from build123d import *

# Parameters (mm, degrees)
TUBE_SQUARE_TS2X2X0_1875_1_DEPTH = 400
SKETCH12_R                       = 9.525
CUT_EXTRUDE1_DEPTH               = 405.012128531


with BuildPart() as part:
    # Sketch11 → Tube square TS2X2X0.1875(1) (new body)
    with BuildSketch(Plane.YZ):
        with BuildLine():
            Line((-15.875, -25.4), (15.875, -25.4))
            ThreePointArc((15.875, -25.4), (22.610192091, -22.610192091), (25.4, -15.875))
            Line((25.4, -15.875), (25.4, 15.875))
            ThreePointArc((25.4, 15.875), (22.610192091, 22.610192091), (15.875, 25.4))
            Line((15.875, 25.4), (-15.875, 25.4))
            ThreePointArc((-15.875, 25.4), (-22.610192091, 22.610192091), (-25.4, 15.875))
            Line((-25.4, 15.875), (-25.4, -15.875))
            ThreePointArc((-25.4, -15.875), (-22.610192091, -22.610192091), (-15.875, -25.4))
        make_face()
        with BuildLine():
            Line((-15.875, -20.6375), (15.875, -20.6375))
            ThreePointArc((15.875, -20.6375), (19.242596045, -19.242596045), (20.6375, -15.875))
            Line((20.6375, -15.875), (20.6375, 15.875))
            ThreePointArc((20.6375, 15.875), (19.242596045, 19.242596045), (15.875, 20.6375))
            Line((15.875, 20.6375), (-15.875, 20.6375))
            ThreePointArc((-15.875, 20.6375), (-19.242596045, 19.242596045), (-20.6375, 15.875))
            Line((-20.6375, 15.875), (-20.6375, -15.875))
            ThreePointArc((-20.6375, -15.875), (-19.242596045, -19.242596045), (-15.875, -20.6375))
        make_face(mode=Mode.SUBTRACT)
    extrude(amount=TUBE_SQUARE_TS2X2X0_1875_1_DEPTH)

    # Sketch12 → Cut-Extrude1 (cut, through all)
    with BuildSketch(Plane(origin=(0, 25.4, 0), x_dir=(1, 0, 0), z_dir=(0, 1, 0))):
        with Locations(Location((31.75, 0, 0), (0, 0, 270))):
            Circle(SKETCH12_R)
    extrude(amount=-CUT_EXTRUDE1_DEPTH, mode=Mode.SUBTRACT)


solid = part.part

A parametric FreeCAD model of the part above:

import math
import FreeCAD as App
import Part
import Sketcher
Q = App.Units.Quantity

doc = App.newDocument("Part")
body = doc.addObject("PartDesign::Body", "Body")

# Sketch on YZ plane
sketch1 = body.newObject("Sketcher::SketchObject", "Sketch")
sketch1.AttachmentSupport = (doc.getObject("YZ_Plane"), [""])
sketch1.MapMode = "FlatFace"
sketch1.addGeometry(Part.LineSegment(App.Vector(-15.9, -25.4, 0), App.Vector(15.9, -25.4, 0)), False)
sketch1.addGeometry(Part.ArcOfCircle(Part.Circle(App.Vector(15.9, -15.9, 0), App.Vector(0, 0, 1), 9.5), math.radians(-90), math.radians(0)), False)
sketch1.addGeometry(Part.LineSegment(App.Vector(25.4, -15.9, 0), App.Vector(25.4, 15.9, 0)), False)
sketch1.addGeometry(Part.ArcOfCircle(Part.Circle(App.Vector(15.9, 15.9, 0), App.Vector(0, 0, 1), 9.5), math.radians(0), math.radians(90)), False)
sketch1.addGeometry(Part.LineSegment(App.Vector(15.9, 25.4, 0), App.Vector(-15.9, 25.4, 0)), False)
sketch1.addGeometry(Part.ArcOfCircle(Part.Circle(App.Vector(-15.9, 15.9, 0), App.Vector(0, 0, 1), 9.5), math.radians(90), math.radians(180)), False)
sketch1.addGeometry(Part.LineSegment(App.Vector(-25.4, 15.9, 0), App.Vector(-25.4, -15.9, 0)), False)
sketch1.addGeometry(Part.ArcOfCircle(Part.Circle(App.Vector(-15.9, -15.9, 0), App.Vector(0, 0, 1), 9.5), math.radians(180), math.radians(270)), False)
sketch1.addGeometry(Part.LineSegment(App.Vector(15.9, -20.6, 0), App.Vector(-15.9, -20.6, 0)), False)
sketch1.addGeometry(Part.ArcOfCircle(Part.Circle(App.Vector(-15.9, -15.9, 0), App.Vector(0, 0, 1), 4.8), math.radians(-180), math.radians(-90)), False)
sketch1.addGeometry(Part.LineSegment(App.Vector(-20.6, -15.9, 0), App.Vector(-20.6, 15.9, 0)), False)
sketch1.addGeometry(Part.ArcOfCircle(Part.Circle(App.Vector(-15.9, 15.9, 0), App.Vector(0, 0, 1), 4.8), math.radians(90), math.radians(180)), False)
sketch1.addGeometry(Part.LineSegment(App.Vector(-15.9, 20.6, 0), App.Vector(15.9, 20.6, 0)), False)
sketch1.addGeometry(Part.ArcOfCircle(Part.Circle(App.Vector(15.9, 15.9, 0), App.Vector(0, 0, 1), 4.8), math.radians(0), math.radians(90)), False)
sketch1.addGeometry(Part.LineSegment(App.Vector(20.6, 15.9, 0), App.Vector(20.6, -15.9, 0)), False)
sketch1.addGeometry(Part.ArcOfCircle(Part.Circle(App.Vector(15.9, -15.9, 0), App.Vector(0, 0, 1), 4.8), math.radians(-90), math.radians(0)), False)
sketch1.addConstraint(Sketcher.Constraint("Tangent", 0, 2, 1, 1))
sketch1.addConstraint(Sketcher.Constraint("Tangent", 1, 2, 2, 1))
sketch1.addConstraint(Sketcher.Constraint("Tangent", 2, 2, 3, 1))
sketch1.addConstraint(Sketcher.Constraint("Tangent", 3, 2, 4, 1))
sketch1.addConstraint(Sketcher.Constraint("Tangent", 4, 2, 5, 1))
sketch1.addConstraint(Sketcher.Constraint("Tangent", 5, 2, 6, 1))
sketch1.addConstraint(Sketcher.Constraint("Tangent", 6, 2, 7, 1))
sketch1.addConstraint(Sketcher.Constraint("Tangent", 7, 2, 0, 1))
sketch1.addConstraint(Sketcher.Constraint("Tangent", 8, 2, 9, 2))
sketch1.addConstraint(Sketcher.Constraint("Tangent", 9, 1, 10, 1))
sketch1.addConstraint(Sketcher.Constraint("Tangent", 10, 2, 11, 2))
sketch1.addConstraint(Sketcher.Constraint("Tangent", 11, 1, 12, 1))
sketch1.addConstraint(Sketcher.Constraint("Tangent", 12, 2, 13, 2))
sketch1.addConstraint(Sketcher.Constraint("Tangent", 13, 1, 14, 1))
sketch1.addConstraint(Sketcher.Constraint("Tangent", 14, 2, 15, 2))
sketch1.addConstraint(Sketcher.Constraint("Tangent", 15, 1, 8, 1))
sketch1.addConstraint(Sketcher.Constraint("Horizontal", 0))
sketch1.addConstraint(Sketcher.Constraint("Vertical", 2))
sketch1.addConstraint(Sketcher.Constraint("Horizontal", 4))
sketch1.addConstraint(Sketcher.Constraint("Vertical", 6))
sketch1.addConstraint(Sketcher.Constraint("Horizontal", 8))
sketch1.addConstraint(Sketcher.Constraint("Vertical", 10))
sketch1.addConstraint(Sketcher.Constraint("Horizontal", 12))
sketch1.addConstraint(Sketcher.Constraint("Vertical", 14))
sketch1.addConstraint(Sketcher.Constraint("Coincident", 9, 3, 7, 3))
sketch1.addConstraint(Sketcher.Constraint("Coincident", 11, 3, 5, 3))
sketch1.addConstraint(Sketcher.Constraint("Coincident", 13, 3, 3, 3))
sketch1.addConstraint(Sketcher.Constraint("Equal", 1, 3))
sketch1.addConstraint(Sketcher.Constraint("Equal", 3, 5))
sketch1.addConstraint(Sketcher.Constraint("Equal", 5, 7))
sketch1.addConstraint(Sketcher.Constraint("Equal", 13, 15))
sketch1.addConstraint(Sketcher.Constraint("Symmetric", 1, 3, 5, 3, -1, 1))
sketch1.addConstraint(Sketcher.Constraint("Equal", 12, 2))
sketch1.addConstraint(Sketcher.Constraint("DistanceY", 0, 2, -1, 1, Q("1 in")))
sketch1.addConstraint(Sketcher.Constraint("Radius", 1, Q("0.375 in")))
sketch1.addConstraint(Sketcher.Constraint("Radius", 9, Q("0.1875 in")))
pad1 = body.newObject("PartDesign::Pad", "Pad")
pad1.Profile = sketch1
pad1.Length = 400

# Sketch on XZ plane
sketch2 = body.newObject("Sketcher::SketchObject", "Sketch001")
sketch2.AttachmentSupport = (doc.getObject("XZ_Plane"), [""])
sketch2.MapMode = "FlatFace"
sketch2.AttachmentOffset = App.Placement(App.Vector(0, 0, -1 * 25.4), App.Rotation())
sketch2.addGeometry(Part.Circle(App.Vector(32, 0, 0), App.Vector(0, 0, 1), 10), False)
sketch2.addConstraint(Sketcher.Constraint("PointOnObject", 0, 3, -1))
sketch2.addConstraint(Sketcher.Constraint("Diameter", 0, Q("0.75 in")))
sketch2.addConstraint(Sketcher.Constraint("DistanceX", -1, 1, 0, 3, Q("1.25 in")))
pocket1 = body.newObject("PartDesign::Pocket", "Pocket")
pocket1.Profile = sketch2
pocket1.Type = "ThroughAll"
pocket1.Reversed = True

doc.recompute()
